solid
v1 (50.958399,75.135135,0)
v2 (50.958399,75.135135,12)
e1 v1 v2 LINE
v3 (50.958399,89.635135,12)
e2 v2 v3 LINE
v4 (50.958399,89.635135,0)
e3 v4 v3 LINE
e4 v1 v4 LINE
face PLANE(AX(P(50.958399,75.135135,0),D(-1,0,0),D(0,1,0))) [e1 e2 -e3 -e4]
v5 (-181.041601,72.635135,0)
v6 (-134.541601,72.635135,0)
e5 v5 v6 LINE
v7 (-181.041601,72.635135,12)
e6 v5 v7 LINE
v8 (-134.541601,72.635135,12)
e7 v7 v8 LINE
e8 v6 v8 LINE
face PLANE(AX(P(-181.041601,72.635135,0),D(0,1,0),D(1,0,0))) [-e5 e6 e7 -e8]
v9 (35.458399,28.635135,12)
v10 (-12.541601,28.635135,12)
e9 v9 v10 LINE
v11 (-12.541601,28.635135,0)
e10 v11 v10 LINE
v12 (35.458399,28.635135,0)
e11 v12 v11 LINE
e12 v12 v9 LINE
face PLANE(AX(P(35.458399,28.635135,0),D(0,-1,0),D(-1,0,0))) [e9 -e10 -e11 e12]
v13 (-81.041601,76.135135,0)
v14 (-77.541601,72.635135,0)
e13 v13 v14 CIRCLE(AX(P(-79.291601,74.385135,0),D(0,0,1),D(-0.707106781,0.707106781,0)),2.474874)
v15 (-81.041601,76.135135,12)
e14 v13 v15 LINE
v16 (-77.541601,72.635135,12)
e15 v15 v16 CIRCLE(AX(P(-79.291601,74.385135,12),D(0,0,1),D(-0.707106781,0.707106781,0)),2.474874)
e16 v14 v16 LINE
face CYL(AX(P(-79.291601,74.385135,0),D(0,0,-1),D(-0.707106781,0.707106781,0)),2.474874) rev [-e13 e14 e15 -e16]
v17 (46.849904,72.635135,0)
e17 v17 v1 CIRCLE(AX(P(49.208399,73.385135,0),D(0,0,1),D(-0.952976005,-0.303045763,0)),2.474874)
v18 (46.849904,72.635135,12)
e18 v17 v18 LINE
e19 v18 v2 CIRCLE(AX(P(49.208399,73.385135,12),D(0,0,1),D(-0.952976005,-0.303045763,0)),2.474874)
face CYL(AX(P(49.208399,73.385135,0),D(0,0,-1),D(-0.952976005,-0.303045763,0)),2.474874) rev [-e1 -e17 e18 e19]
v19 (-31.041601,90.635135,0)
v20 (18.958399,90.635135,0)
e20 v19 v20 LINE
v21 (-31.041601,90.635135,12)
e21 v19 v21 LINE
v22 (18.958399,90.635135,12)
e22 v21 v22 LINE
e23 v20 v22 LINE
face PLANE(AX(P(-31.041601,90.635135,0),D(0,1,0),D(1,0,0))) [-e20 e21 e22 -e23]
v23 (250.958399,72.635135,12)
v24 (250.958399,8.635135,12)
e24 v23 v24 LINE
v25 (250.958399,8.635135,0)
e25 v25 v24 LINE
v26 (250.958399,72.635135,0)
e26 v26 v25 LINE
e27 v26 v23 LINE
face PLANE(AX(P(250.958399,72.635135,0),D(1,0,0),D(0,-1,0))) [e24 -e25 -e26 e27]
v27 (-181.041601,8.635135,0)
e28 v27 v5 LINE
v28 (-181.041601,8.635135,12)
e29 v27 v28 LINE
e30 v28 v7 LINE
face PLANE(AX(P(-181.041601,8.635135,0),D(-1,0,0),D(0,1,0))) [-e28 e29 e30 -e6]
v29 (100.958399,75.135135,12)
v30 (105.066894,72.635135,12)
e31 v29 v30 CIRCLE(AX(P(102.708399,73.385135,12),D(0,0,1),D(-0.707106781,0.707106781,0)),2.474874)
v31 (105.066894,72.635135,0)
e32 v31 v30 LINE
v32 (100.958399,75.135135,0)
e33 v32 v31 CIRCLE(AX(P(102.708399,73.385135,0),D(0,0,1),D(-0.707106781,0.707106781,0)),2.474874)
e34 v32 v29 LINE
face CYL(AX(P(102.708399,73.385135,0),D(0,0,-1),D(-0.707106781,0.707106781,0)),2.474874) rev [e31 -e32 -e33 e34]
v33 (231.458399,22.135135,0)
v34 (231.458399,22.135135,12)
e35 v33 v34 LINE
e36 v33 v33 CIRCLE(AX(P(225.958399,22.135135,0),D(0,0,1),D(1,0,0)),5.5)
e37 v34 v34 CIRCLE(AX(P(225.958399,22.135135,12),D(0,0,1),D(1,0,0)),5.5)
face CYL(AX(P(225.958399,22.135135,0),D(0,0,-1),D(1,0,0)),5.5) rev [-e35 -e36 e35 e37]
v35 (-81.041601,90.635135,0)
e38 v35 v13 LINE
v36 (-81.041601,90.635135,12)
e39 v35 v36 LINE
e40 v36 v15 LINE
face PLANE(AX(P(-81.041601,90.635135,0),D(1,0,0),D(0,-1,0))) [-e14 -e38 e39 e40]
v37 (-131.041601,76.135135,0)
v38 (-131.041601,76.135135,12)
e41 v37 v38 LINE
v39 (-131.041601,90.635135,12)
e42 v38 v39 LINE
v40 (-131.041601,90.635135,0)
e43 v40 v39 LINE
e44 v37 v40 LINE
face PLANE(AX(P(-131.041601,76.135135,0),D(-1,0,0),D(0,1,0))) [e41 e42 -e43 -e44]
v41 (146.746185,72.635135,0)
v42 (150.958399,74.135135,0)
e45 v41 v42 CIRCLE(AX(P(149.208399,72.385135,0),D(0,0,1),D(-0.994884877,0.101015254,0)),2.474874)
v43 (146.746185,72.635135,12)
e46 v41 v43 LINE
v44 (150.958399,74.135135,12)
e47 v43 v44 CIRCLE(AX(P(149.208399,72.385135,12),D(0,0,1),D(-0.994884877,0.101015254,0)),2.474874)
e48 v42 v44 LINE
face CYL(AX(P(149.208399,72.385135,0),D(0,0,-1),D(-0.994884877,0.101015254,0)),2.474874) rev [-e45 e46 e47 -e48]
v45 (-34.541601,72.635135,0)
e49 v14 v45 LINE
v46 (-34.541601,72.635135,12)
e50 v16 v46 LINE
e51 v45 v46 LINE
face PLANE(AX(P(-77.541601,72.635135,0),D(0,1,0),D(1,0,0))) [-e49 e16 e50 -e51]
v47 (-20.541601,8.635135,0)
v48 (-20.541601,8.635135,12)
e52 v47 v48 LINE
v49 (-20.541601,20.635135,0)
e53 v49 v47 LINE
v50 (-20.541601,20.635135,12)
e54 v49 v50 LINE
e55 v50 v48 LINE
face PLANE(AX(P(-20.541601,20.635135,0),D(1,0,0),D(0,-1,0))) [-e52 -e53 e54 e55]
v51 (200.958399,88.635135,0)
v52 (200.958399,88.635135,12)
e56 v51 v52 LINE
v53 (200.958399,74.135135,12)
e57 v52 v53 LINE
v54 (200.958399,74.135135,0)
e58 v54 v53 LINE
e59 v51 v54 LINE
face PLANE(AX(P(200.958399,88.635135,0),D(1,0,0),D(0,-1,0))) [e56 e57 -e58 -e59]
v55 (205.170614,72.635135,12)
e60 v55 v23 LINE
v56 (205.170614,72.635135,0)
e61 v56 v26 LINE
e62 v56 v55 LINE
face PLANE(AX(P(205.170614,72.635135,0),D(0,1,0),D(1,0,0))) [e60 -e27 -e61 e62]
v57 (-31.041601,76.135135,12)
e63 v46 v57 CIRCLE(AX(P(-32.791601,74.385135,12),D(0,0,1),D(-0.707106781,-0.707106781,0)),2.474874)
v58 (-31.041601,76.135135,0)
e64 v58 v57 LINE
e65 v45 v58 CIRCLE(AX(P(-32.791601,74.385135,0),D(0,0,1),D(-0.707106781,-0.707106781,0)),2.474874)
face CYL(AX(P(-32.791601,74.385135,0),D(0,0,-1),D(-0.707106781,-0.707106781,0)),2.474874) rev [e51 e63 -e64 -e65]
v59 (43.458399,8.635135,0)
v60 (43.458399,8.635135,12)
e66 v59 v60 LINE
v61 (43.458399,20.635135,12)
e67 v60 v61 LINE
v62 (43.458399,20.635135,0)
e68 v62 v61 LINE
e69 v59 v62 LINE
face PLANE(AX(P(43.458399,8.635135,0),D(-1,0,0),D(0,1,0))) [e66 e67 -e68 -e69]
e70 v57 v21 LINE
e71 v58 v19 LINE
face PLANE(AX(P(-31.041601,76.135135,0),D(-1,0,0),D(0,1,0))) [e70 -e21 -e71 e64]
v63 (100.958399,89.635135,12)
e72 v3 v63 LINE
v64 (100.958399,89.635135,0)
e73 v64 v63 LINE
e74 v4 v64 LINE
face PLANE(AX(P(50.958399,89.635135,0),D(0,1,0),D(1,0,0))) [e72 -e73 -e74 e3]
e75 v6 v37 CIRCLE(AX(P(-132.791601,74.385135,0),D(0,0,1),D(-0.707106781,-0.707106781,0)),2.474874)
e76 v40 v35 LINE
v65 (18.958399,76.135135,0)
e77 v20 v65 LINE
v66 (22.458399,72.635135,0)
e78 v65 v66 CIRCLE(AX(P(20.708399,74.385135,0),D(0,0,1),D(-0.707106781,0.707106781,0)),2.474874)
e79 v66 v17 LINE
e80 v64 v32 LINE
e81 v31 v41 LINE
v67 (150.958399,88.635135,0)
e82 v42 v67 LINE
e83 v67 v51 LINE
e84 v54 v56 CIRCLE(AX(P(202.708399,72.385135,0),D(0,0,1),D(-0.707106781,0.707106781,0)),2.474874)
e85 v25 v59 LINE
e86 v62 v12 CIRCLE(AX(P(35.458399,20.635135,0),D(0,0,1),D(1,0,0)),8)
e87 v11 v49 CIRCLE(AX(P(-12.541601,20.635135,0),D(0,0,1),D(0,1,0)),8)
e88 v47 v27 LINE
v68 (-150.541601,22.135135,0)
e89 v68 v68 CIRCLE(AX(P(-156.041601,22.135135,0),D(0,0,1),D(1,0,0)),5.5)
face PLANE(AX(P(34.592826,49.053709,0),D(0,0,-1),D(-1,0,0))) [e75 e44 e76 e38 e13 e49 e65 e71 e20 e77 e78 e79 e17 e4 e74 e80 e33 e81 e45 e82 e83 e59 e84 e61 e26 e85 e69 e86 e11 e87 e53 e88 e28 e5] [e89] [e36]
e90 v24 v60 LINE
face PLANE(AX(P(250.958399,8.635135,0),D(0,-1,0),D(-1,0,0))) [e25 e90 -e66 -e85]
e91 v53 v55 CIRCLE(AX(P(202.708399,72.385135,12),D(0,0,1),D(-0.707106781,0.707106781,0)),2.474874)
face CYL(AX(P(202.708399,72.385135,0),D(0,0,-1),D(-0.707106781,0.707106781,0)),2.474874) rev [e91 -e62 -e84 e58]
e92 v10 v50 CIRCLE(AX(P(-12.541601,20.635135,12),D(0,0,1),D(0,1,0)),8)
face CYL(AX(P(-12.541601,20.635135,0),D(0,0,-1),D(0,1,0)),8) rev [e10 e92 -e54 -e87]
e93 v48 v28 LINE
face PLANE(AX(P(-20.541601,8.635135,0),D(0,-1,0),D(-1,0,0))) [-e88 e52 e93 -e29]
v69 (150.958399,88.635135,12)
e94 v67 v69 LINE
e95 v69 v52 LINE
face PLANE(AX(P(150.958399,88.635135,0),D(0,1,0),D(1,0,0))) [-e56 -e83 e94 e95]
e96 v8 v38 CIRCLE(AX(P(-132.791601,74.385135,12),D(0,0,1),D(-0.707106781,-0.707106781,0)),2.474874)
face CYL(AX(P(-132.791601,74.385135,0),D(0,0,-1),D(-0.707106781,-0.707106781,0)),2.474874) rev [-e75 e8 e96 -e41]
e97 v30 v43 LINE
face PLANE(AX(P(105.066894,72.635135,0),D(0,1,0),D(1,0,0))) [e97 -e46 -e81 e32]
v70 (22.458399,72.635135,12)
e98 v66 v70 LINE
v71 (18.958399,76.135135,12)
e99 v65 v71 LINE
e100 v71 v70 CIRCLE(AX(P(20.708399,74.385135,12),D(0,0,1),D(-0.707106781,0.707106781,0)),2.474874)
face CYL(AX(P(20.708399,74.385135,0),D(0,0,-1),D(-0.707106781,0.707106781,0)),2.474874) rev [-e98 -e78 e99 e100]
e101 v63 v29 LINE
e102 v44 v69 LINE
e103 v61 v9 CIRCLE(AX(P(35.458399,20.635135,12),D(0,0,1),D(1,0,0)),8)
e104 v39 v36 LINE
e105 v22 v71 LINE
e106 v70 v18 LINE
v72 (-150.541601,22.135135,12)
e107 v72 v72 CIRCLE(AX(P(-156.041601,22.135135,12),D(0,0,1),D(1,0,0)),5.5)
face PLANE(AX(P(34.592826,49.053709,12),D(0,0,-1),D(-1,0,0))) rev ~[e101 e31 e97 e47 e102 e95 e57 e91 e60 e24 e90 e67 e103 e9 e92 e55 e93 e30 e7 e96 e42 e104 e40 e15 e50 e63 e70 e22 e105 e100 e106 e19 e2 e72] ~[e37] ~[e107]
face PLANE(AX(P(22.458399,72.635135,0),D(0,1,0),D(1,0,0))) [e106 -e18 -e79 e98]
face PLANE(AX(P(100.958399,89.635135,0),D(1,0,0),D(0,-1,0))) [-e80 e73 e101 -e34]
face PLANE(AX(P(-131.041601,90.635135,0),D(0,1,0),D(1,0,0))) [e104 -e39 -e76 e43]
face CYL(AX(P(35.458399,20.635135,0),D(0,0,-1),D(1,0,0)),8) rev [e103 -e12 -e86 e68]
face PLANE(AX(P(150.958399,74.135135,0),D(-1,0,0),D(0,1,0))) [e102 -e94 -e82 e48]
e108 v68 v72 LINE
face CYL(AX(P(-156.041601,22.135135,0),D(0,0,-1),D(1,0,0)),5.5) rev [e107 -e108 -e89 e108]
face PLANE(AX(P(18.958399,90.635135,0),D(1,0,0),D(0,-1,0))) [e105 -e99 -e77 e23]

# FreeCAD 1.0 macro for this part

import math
import FreeCAD as App
import Part
import Sketcher

V = App.Vector
Q = App.Units.Quantity

doc = App.newDocument("Part")
body = doc.addObject("PartDesign::Body", "Body")

sketch1 = doc.addObject("Sketcher::SketchObject", "Sketch")
body.addObject(sketch1)
sketch1.AttachmentSupport = (doc.XY_Plane, [""])
sketch1.MapMode = "FlatFace"
sketch1.addGeometry([
    Part.LineSegment(V(-134.5, 72.6, 0), V(-181, 72.6, 0)),
    Part.LineSegment(V(-181, 72.6, 0), V(-181, 8.6, 0)),
    Part.LineSegment(V(-181, 8.6, 0), V(-20.5, 8.6, 0)),
    Part.LineSegment(V(-20.5, 8.6, 0), V(-20.5, 20.6, 0)),
    Part.ArcOfCircle(Part.Circle(V(-12.5, 20.6, 0), V(0, 0, 1), 8), math.radians(90), math.radians(180)),
    Part.LineSegment(V(-12.5, 28.6, 0), V(35.5, 28.6, 0)),
    Part.ArcOfCircle(Part.Circle(V(35.5, 20.6, 0), V(0, 0, 1), 8), math.radians(0), math.radians(90)),
    Part.LineSegment(V(43.5, 20.6, 0), V(43.5, 8.6, 0)),
    Part.LineSegment(V(43.5, 8.6, 0), V(251, 8.6, 0)),
    Part.LineSegment(V(251, 8.6, 0), V(251, 72.6, 0)),
    Part.LineSegment(V(251, 72.6, 0), V(205.2, 72.6, 0)),
    Part.ArcOfCircle(Part.Circle(V(202.7, 72.4, 0), V(0, 0, 1), 2.5), math.radians(135), math.radians(366)),
    Part.LineSegment(V(201, 74.1, 0), V(201, 88.6, 0)),
    Part.LineSegment(V(201, 88.6, 0), V(151, 88.6, 0)),
    Part.LineSegment(V(151, 88.6, 0), V(151, 74.1, 0)),
    Part.ArcOfCircle(Part.Circle(V(149.2, 72.4, 0), V(0, 0, 1), 2.5), math.radians(174), math.radians(405)),
    Part.LineSegment(V(146.7, 72.6, 0), V(105.1, 72.6, 0)),
    Part.ArcOfCircle(Part.Circle(V(102.7, 73.4, 0), V(0, 0, 1), 2.5), math.radians(135), math.radians(342)),
    Part.LineSegment(V(101, 75.1, 0), V(101, 89.6, 0)),
    Part.LineSegment(V(101, 89.6, 0), V(51, 89.6, 0)),
    Part.LineSegment(V(51, 89.6, 0), V(51, 75.1, 0)),
    Part.ArcOfCircle(Part.Circle(V(49.2, 73.4, 0), V(0, 0, 1), 2.5), math.radians(-162), math.radians(45)),
    Part.LineSegment(V(46.8, 72.6, 0), V(22.5, 72.6, 0)),
    Part.ArcOfCircle(Part.Circle(V(20.7, 74.4, 0), V(0, 0, 1), 2.5), math.radians(135), math.radians(315)),
    Part.LineSegment(V(19, 76.1, 0), V(19, 90.6, 0)),
    Part.LineSegment(V(19, 90.6, 0), V(-31, 90.6, 0)),
    Part.LineSegment(V(-31, 90.6, 0), V(-31, 76.1, 0)),
    Part.ArcOfCircle(Part.Circle(V(-32.8, 74.4, 0), V(0, 0, 1), 2.5), math.radians(-135), math.radians(45)),
    Part.LineSegment(V(-34.5, 72.6, 0), V(-77.5, 72.6, 0)),
    Part.ArcOfCircle(Part.Circle(V(-79.3, 74.4, 0), V(0, 0, 1), 2.5), math.radians(135), math.radians(315)),
    Part.LineSegment(V(-81, 76.1, 0), V(-81, 90.6, 0)),
    Part.LineSegment(V(-81, 90.6, 0), V(-131, 90.6, 0)),
    Part.LineSegment(V(-131, 90.6, 0), V(-131, 76.1, 0)),
    Part.ArcOfCircle(Part.Circle(V(-132.8, 74.4, 0), V(0, 0, 1), 2.5), math.radians(-135), math.radians(45)),
    Part.Circle(V(226, 22.1, 0), V(0, 0, 1), 5.5),
    Part.Circle(V(-156, 22.1, 0), V(0, 0, 1), 5.5),
], False)
sketch1.addConstraint([
    Sketcher.Constraint("Coincident", 0, 2, 1, 1),
    Sketcher.Constraint("Coincident", 1, 2, 2, 1),
    Sketcher.Constraint("Coincident", 2, 2, 3, 1),
    Sketcher.Constraint("Tangent", 3, 2, 4, 2),
    Sketcher.Constraint("Tangent", 4, 1, 5, 1),
    Sketcher.Constraint("Tangent", 5, 2, 6, 2),
    Sketcher.Constraint("Tangent", 6, 1, 7, 1),
    Sketcher.Constraint("Coincident", 7, 2, 8, 1),
    Sketcher.Constraint("Coincident", 8, 2, 9, 1),
    Sketcher.Constraint("Coincident", 9, 2, 10, 1),
    Sketcher.Constraint("Coincident", 10, 2, 11, 2),
    Sketcher.Constraint("Coincident", 11, 1, 12, 1),
    Sketcher.Constraint("Coincident", 12, 2, 13, 1),
    Sketcher.Constraint("Coincident", 13, 2, 14, 1),
    Sketcher.Constraint("Coincident", 14, 2, 15, 2),
    Sketcher.Constraint("Coincident", 15, 1, 16, 1),
    Sketcher.Constraint("Coincident", 16, 2, 17, 2),
    Sketcher.Constraint("Coincident", 17, 1, 18, 1),
    Sketcher.Constraint("Coincident", 18, 2, 19, 1),
    Sketcher.Constraint("Coincident", 19, 2, 20, 1),
    Sketcher.Constraint("Coincident", 20, 2, 21, 2),
    Sketcher.Constraint("Coincident", 21, 1, 22, 1),
    Sketcher.Constraint("Coincident", 22, 2, 23, 2),
    Sketcher.Constraint("Coincident", 23, 1, 24, 1),
    Sketcher.Constraint("Coincident", 24, 2, 25, 1),
    Sketcher.Constraint("Coincident", 25, 2, 26, 1),
    Sketcher.Constraint("Coincident", 26, 2, 27, 2),
    Sketcher.Constraint("Coincident", 27, 1, 28, 1),
    Sketcher.Constraint("Coincident", 28, 2, 29, 2),
    Sketcher.Constraint("Coincident", 29, 1, 30, 1),
    Sketcher.Constraint("Coincident", 30, 2, 31, 1),
    Sketcher.Constraint("Coincident", 31, 2, 32, 1),
    Sketcher.Constraint("Coincident", 32, 2, 33, 2),
    Sketcher.Constraint("Coincident", 33, 1, 0, 1),
    Sketcher.Constraint("Horizontal", 0),
    Sketcher.Constraint("Vertical", 1),
    Sketcher.Constraint("Horizontal", 2),
    Sketcher.Constraint("Vertical", 3),
    Sketcher.Constraint("Horizontal", 5),
    Sketcher.Constraint("Vertical", 7),
    Sketcher.Constraint("Horizontal", 8),
    Sketcher.Constraint("Vertical", 9),
    Sketcher.Constraint("Horizontal", 10),
    Sketcher.Constraint("Vertical", 12),
    Sketcher.Constraint("Horizontal", 13),
    Sketcher.Constraint("Vertical", 14),
    Sketcher.Constraint("Horizontal", 16),
    Sketcher.Constraint("Vertical", 18),
    Sketcher.Constraint("Horizontal", 19),
    Sketcher.Constraint("Vertical", 20),
    Sketcher.Constraint("Horizontal", 22),
    Sketcher.Constraint("Vertical", 24),
    Sketcher.Constraint("Horizontal", 25),
    Sketcher.Constraint("Vertical", 26),
    Sketcher.Constraint("Horizontal", 28),
    Sketcher.Constraint("Vertical", 30),
    Sketcher.Constraint("Horizontal", 31),
    Sketcher.Constraint("Vertical", 32),
    Sketcher.Constraint("Equal", 4, 6),
    Sketcher.Constraint("Equal", 11, 15),
    Sketcher.Constraint("Equal", 15, 17),
    Sketcher.Constraint("Equal", 17, 21),
    Sketcher.Constraint("Equal", 21, 23),
    Sketcher.Constraint("Equal", 23, 27),
    Sketcher.Constraint("Equal", 27, 29),
    Sketcher.Constraint("Equal", 29, 33),
    Sketcher.Constraint("Equal", 34, 35),
    Sketcher.Constraint("Horizontal", 11, 3, 15, 3),
    Sketcher.Constraint("Horizontal", 17, 3, 21, 3),
    Sketcher.Constraint("Horizontal", 23, 3, 27, 3),
    Sketcher.Constraint("Horizontal", 27, 3, 29, 3),
    Sketcher.Constraint("Horizontal", 29, 3, 33, 3),
    Sketcher.Constraint("Horizontal", 34, 3, 35, 3),
    Sketcher.Constraint("Horizontal", 2, 2, 7, 2),
    Sketcher.Constraint("Horizontal", 0, 2, 9, 2),
    Sketcher.Constraint("Horizontal", 11, 1, 14, 2),
    Sketcher.Constraint("Horizontal", 10, 2, 15, 1),
    Sketcher.Constraint("Horizontal", 17, 1, 20, 2),
    Sketcher.Constraint("Horizontal", 16, 2, 21, 1),
    Sketcher.Constraint("Horizontal", 23, 1, 26, 2),
    Sketcher.Constraint("Horizontal", 22, 2, 27, 1),
    Sketcher.Constraint("Horizontal", 26, 2, 29, 1),
    Sketcher.Constraint("Horizontal", 25, 2, 30, 2),
    Sketcher.Constraint("Horizontal", 29, 1, 32, 2),
    Sketcher.Constraint("Equal", 13, 19),
    Sketcher.Constraint("Equal", 19, 25),
    Sketcher.Constraint("Equal", 25, 31),
    Sketcher.Constraint("Equal", 14, 18),
    Sketcher.Constraint("Equal", 20, 24),
    Sketcher.Constraint("Diameter", 34, Q("11 mm")),
    Sketcher.Constraint("Radius", 4, Q("8 mm")),
    Sketcher.Constraint("DistanceX", 5, 1, 5, 2, Q("48 mm")),
    Sketcher.Constraint("DistanceX", 13, 2, 13, 1, Q("50 mm")),
    Sketcher.Constraint("DistanceX", 28, 2, 28, 1, Q("43 mm")),
    Sketcher.Constraint("DistanceY", 1, 2, 1, 1, Q("64 mm")),
    Sketcher.Constraint("DistanceY", 3, 1, 3, 2, Q("12 mm")),
    Sketcher.Constraint("DistanceX", 0, 2, 0, 1, Q("46.5 mm")),
    Sketcher.Constraint("DistanceX", 2, 1, 2, 2, Q("160.5 mm")),
    Sketcher.Constraint("DistanceX", 8, 1, 8, 2, Q("207.5 mm")),
    Sketcher.Constraint("DistanceY", 12, 1, 12, 2, Q("14.5 mm")),
    Sketcher.Constraint("DistanceY", 15, 3, 17, 3, Q("1 mm")),
    Sketcher.Constraint("DistanceX", 17, 3, 11, 3, Q("100 mm")),
    Sketcher.Constraint("DistanceX", 21, 3, 15, 3, Q("100 mm")),
    Sketcher.Constraint("DistanceY", 21, 3, 23, 3, Q("1 mm")),
    Sketcher.Constraint("DistanceX", 23, 3, 17, 3, Q("82 mm")),
    Sketcher.Constraint("DistanceX", 27, 3, 21, 3, Q("82 mm")),
    Sketcher.Constraint("DistanceX", 29, 3, 23, 3, Q("100 mm")),
    Sketcher.Constraint("DistanceX", 0, 2, 35, 3, Q("25 mm")),
    Sketcher.Constraint("DistanceX", 34, 3, 8, 2, Q("25 mm")),
    Sketcher.Constraint("DistanceY", 34, 3, 11, 1, Q("52 mm")),
    Sketcher.Constraint("DistanceY", 10, 2, 12, 2, Q("16 mm")),
    Sketcher.Constraint("DistanceX", 15, 3, 11, 3, Q("53.5 mm")),
    Sketcher.Constraint("DistanceX", 4, 3, -1, 1, Q("12.541601 mm")),
    Sketcher.Constraint("DistanceY", -1, 1, 4, 3, Q("20.635135 mm")),
])
pad1 = doc.addObject("PartDesign::Pad", "Pad")
body.addObject(pad1)
pad1.Profile = sketch1
pad1.Length = 12

doc.recompute()
